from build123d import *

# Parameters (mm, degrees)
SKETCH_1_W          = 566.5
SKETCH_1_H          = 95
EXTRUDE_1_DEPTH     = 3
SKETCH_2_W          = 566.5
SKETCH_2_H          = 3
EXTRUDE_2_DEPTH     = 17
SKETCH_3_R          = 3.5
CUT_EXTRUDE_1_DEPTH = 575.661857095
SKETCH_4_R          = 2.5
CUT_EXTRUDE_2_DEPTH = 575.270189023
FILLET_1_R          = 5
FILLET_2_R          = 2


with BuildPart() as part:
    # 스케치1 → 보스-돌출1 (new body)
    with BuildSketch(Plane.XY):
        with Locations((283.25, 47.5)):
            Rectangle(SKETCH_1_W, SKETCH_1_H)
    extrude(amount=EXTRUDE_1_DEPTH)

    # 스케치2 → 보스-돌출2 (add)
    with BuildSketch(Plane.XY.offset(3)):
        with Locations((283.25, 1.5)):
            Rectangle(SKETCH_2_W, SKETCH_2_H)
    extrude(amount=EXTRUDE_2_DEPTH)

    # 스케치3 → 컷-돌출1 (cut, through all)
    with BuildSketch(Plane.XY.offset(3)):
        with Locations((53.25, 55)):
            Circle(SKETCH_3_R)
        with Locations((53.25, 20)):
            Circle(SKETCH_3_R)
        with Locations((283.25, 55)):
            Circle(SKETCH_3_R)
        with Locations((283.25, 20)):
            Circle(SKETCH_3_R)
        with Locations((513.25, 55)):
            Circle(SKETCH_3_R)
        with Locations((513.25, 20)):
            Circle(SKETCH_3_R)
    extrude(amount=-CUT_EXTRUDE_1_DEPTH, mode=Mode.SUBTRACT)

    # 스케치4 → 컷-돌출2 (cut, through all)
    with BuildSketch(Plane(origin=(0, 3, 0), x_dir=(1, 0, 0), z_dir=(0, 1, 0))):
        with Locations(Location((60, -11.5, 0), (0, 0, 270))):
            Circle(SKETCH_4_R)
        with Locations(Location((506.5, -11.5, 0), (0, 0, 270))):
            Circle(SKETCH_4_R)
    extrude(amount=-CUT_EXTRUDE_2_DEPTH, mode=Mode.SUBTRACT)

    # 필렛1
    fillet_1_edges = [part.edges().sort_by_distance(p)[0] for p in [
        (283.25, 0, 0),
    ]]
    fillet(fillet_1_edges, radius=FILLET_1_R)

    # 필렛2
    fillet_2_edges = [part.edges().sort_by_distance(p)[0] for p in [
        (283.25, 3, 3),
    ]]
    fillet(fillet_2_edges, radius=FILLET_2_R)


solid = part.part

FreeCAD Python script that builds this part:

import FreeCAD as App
import Part
import Sketcher


def edges_at(feature, points):
    """Names of the edges that pass closest to the given points."""
    edges = feature.Shape.Edges
    near = lambda p: min(range(len(edges)), key=lambda i: edges[i].distToShape(Part.Vertex(*p))[0])
    return sorted({f"Edge{near(p) + 1}" for p in points})


def add_polygon(sketch, points):
    """Adds a closed chain of lines whose ends are joined by coincident constraints."""
    first, n = sketch.GeometryCount, len(points)
    for a, b in zip(points, points[1:] + points[:1]):
        sketch.addGeometry(Part.LineSegment(App.Vector(*a, 0), App.Vector(*b, 0)), False)
    for i in range(n):
        sketch.addConstraint(Sketcher.Constraint("Coincident", first + i, 2, first + (i + 1) % n, 1))

doc = App.newDocument("Part")
body = doc.addObject("PartDesign::Body", "Body")

# Sketch on XY plane
sketch1 = body.newObject("Sketcher::SketchObject", "Sketch")
sketch1.AttachmentSupport = (doc.getObject("XY_Plane"), [""])
sketch1.MapMode = "FlatFace"
add_polygon(sketch1, [(0, 95), (0, 0), (566.5, 0), (566.5, 95)])  # lines 0-3
sketch1.addConstraint([
    Sketcher.Constraint("Vertical", 0),
    Sketcher.Constraint("Horizontal", 1),
    Sketcher.Constraint("Vertical", 2),
    Sketcher.Constraint("Horizontal", 3),
    Sketcher.Constraint("Coincident", 0, 2, -1, 1),
    Sketcher.Constraint("DistanceY", 0, 2, 0, 1, 95.0),
    Sketcher.Constraint("DistanceX", 1, 1, 1, 2, 566.5),
])
pad1 = body.newObject("PartDesign::Pad", "Pad")
pad1.Profile = sketch1
pad1.Length = 3

# Sketch on XY plane
sketch2 = body.newObject("Sketcher::SketchObject", "Sketch001")
sketch2.AttachmentSupport = (doc.getObject("XY_Plane"), [""])
sketch2.MapMode = "FlatFace"
sketch2.AttachmentOffset = App.Placement(App.Vector(0, 0, 3), App.Rotation())
add_polygon(sketch2, [(0, 3), (0, 0), (566.5, 0), (566.5, 3)])  # lines 0-3
sketch2.addConstraint([
    Sketcher.Constraint("Vertical", 0),
    Sketcher.Constraint("Horizontal", 1),
    Sketcher.Constraint("Vertical", 2),
    Sketcher.Constraint("Horizontal", 3),
    Sketcher.Constraint("Coincident", 0, 2, -1, 1),
    Sketcher.Constraint("DistanceY", 0, 2, 0, 1, 3.0),
    Sketcher.Constraint("DistanceX", 1, 1, 1, 2, 566.5),
])
pad2 = body.newObject("PartDesign::Pad", "Pad001")
pad2.Profile = sketch2
pad2.Length = 17

# Sketch on XY plane
sketch3 = body.newObject("Sketcher::SketchObject", "Sketch002")
sketch3.AttachmentSupport = (doc.getObject("XY_Plane"), [""])
sketch3.MapMode = "FlatFace"
sketch3.AttachmentOffset = App.Placement(App.Vector(0, 0, 3), App.Rotation())
sketch3.addGeometry([
    Part.Circle(App.Vector(53.25, 55, 0), App.Vector(0, 0, 1), 3.5),  # 0
    Part.Circle(App.Vector(53.25, 20, 0), App.Vector(0, 0, 1), 3.5),  # 1
    Part.Circle(App.Vector(283.25, 55, 0), App.Vector(0, 0, 1), 3.5),  # 2
    Part.Circle(App.Vector(283.25, 20, 0), App.Vector(0, 0, 1), 3.5),  # 3
    Part.Circle(App.Vector(513.25, 55, 0), App.Vector(0, 0, 1), 3.5),  # 4
    Part.Circle(App.Vector(513.25, 20, 0), App.Vector(0, 0, 1), 3.5),  # 5
], False)
sketch3.addConstraint([
    Sketcher.Constraint("Equal", 0, 1),
    Sketcher.Constraint("Equal", 1, 2),
    Sketcher.Constraint("Equal", 2, 3),
    Sketcher.Constraint("Equal", 3, 4),
    Sketcher.Constraint("Equal", 4, 5),
    Sketcher.Constraint("Horizontal", 0, 3, 2, 3),
    Sketcher.Constraint("Horizontal", 1, 3, 3, 3),
    Sketcher.Constraint("Horizontal", 2, 3, 4, 3),
    Sketcher.Constraint("Horizontal", 3, 3, 5, 3),
    Sketcher.Constraint("Vertical", 0, 3, 1, 3),
    Sketcher.Constraint("Vertical", 2, 3, 3, 3),
    Sketcher.Constraint("Vertical", 4, 3, 5, 3),
    Sketcher.Constraint("Diameter", 0, 7.0),
    Sketcher.Constraint("DistanceY", -1, 1, 0, 3, 55.0),
    Sketcher.Constraint("DistanceY", -1, 1, 1, 3, 20.0),
    Sketcher.Constraint("DistanceX", 0, 3, 2, 3, 230.0),
    Sketcher.Constraint("DistanceX", 2, 3, 4, 3, 230.0),
    Sketcher.Constraint("DistanceX", -1, 1, 0, 3, 53.25),
])
pocket1 = body.newObject("PartDesign::Pocket", "Pocket")
pocket1.Profile = sketch3
pocket1.Type = "ThroughAll"

# Sketch on XZ plane
sketch4 = body.newObject("Sketcher::SketchObject", "Sketch003")
sketch4.AttachmentSupport = (doc.getObject("XZ_Plane"), [""])
sketch4.MapMode = "FlatFace"
sketch4.AttachmentOffset = App.Placement(App.Vector(0, 0, -3), App.Rotation())
sketch4.addGeometry([
    Part.Circle(App.Vector(60, 11.5, 0), App.Vector(0, 0, 1), 2.5),
    Part.Circle(App.Vector(506.5, 11.5, 0), App.Vector(0, 0, 1), 2.5),
], False)
sketch4.addConstraint([
    Sketcher.Constraint("Equal", 0, 1),
    Sketcher.Constraint("Horizontal", 0, 3, 1, 3),
    Sketcher.Constraint("Diameter", 0, 5.0),
    Sketcher.Constraint("DistanceX", -1, 1, 0, 3, 60.0),
    Sketcher.Constraint("DistanceY", -1, 1, 0, 3, 11.5),
    Sketcher.Constraint("DistanceX", -1, 1, 1, 3, 506.5),
])
pocket2 = body.newObject("PartDesign::Pocket", "Pocket001")
pocket2.Profile = sketch4
pocket2.Type = "ThroughAll"
pocket2.Reversed = True
doc.recompute()

fillet = body.newObject("PartDesign::Fillet", "Fillet")
fillet.Base = (pocket2, edges_at(pocket2, [(283.25, 0, 0)]))
fillet.Radius = 5
doc.recompute()

fillet2 = body.newObject("PartDesign::Fillet", "Fillet001")
fillet2.Base = (fillet, edges_at(fillet, [(283.25, 3, 3)]))
fillet2.Radius = 2

doc.recompute()
